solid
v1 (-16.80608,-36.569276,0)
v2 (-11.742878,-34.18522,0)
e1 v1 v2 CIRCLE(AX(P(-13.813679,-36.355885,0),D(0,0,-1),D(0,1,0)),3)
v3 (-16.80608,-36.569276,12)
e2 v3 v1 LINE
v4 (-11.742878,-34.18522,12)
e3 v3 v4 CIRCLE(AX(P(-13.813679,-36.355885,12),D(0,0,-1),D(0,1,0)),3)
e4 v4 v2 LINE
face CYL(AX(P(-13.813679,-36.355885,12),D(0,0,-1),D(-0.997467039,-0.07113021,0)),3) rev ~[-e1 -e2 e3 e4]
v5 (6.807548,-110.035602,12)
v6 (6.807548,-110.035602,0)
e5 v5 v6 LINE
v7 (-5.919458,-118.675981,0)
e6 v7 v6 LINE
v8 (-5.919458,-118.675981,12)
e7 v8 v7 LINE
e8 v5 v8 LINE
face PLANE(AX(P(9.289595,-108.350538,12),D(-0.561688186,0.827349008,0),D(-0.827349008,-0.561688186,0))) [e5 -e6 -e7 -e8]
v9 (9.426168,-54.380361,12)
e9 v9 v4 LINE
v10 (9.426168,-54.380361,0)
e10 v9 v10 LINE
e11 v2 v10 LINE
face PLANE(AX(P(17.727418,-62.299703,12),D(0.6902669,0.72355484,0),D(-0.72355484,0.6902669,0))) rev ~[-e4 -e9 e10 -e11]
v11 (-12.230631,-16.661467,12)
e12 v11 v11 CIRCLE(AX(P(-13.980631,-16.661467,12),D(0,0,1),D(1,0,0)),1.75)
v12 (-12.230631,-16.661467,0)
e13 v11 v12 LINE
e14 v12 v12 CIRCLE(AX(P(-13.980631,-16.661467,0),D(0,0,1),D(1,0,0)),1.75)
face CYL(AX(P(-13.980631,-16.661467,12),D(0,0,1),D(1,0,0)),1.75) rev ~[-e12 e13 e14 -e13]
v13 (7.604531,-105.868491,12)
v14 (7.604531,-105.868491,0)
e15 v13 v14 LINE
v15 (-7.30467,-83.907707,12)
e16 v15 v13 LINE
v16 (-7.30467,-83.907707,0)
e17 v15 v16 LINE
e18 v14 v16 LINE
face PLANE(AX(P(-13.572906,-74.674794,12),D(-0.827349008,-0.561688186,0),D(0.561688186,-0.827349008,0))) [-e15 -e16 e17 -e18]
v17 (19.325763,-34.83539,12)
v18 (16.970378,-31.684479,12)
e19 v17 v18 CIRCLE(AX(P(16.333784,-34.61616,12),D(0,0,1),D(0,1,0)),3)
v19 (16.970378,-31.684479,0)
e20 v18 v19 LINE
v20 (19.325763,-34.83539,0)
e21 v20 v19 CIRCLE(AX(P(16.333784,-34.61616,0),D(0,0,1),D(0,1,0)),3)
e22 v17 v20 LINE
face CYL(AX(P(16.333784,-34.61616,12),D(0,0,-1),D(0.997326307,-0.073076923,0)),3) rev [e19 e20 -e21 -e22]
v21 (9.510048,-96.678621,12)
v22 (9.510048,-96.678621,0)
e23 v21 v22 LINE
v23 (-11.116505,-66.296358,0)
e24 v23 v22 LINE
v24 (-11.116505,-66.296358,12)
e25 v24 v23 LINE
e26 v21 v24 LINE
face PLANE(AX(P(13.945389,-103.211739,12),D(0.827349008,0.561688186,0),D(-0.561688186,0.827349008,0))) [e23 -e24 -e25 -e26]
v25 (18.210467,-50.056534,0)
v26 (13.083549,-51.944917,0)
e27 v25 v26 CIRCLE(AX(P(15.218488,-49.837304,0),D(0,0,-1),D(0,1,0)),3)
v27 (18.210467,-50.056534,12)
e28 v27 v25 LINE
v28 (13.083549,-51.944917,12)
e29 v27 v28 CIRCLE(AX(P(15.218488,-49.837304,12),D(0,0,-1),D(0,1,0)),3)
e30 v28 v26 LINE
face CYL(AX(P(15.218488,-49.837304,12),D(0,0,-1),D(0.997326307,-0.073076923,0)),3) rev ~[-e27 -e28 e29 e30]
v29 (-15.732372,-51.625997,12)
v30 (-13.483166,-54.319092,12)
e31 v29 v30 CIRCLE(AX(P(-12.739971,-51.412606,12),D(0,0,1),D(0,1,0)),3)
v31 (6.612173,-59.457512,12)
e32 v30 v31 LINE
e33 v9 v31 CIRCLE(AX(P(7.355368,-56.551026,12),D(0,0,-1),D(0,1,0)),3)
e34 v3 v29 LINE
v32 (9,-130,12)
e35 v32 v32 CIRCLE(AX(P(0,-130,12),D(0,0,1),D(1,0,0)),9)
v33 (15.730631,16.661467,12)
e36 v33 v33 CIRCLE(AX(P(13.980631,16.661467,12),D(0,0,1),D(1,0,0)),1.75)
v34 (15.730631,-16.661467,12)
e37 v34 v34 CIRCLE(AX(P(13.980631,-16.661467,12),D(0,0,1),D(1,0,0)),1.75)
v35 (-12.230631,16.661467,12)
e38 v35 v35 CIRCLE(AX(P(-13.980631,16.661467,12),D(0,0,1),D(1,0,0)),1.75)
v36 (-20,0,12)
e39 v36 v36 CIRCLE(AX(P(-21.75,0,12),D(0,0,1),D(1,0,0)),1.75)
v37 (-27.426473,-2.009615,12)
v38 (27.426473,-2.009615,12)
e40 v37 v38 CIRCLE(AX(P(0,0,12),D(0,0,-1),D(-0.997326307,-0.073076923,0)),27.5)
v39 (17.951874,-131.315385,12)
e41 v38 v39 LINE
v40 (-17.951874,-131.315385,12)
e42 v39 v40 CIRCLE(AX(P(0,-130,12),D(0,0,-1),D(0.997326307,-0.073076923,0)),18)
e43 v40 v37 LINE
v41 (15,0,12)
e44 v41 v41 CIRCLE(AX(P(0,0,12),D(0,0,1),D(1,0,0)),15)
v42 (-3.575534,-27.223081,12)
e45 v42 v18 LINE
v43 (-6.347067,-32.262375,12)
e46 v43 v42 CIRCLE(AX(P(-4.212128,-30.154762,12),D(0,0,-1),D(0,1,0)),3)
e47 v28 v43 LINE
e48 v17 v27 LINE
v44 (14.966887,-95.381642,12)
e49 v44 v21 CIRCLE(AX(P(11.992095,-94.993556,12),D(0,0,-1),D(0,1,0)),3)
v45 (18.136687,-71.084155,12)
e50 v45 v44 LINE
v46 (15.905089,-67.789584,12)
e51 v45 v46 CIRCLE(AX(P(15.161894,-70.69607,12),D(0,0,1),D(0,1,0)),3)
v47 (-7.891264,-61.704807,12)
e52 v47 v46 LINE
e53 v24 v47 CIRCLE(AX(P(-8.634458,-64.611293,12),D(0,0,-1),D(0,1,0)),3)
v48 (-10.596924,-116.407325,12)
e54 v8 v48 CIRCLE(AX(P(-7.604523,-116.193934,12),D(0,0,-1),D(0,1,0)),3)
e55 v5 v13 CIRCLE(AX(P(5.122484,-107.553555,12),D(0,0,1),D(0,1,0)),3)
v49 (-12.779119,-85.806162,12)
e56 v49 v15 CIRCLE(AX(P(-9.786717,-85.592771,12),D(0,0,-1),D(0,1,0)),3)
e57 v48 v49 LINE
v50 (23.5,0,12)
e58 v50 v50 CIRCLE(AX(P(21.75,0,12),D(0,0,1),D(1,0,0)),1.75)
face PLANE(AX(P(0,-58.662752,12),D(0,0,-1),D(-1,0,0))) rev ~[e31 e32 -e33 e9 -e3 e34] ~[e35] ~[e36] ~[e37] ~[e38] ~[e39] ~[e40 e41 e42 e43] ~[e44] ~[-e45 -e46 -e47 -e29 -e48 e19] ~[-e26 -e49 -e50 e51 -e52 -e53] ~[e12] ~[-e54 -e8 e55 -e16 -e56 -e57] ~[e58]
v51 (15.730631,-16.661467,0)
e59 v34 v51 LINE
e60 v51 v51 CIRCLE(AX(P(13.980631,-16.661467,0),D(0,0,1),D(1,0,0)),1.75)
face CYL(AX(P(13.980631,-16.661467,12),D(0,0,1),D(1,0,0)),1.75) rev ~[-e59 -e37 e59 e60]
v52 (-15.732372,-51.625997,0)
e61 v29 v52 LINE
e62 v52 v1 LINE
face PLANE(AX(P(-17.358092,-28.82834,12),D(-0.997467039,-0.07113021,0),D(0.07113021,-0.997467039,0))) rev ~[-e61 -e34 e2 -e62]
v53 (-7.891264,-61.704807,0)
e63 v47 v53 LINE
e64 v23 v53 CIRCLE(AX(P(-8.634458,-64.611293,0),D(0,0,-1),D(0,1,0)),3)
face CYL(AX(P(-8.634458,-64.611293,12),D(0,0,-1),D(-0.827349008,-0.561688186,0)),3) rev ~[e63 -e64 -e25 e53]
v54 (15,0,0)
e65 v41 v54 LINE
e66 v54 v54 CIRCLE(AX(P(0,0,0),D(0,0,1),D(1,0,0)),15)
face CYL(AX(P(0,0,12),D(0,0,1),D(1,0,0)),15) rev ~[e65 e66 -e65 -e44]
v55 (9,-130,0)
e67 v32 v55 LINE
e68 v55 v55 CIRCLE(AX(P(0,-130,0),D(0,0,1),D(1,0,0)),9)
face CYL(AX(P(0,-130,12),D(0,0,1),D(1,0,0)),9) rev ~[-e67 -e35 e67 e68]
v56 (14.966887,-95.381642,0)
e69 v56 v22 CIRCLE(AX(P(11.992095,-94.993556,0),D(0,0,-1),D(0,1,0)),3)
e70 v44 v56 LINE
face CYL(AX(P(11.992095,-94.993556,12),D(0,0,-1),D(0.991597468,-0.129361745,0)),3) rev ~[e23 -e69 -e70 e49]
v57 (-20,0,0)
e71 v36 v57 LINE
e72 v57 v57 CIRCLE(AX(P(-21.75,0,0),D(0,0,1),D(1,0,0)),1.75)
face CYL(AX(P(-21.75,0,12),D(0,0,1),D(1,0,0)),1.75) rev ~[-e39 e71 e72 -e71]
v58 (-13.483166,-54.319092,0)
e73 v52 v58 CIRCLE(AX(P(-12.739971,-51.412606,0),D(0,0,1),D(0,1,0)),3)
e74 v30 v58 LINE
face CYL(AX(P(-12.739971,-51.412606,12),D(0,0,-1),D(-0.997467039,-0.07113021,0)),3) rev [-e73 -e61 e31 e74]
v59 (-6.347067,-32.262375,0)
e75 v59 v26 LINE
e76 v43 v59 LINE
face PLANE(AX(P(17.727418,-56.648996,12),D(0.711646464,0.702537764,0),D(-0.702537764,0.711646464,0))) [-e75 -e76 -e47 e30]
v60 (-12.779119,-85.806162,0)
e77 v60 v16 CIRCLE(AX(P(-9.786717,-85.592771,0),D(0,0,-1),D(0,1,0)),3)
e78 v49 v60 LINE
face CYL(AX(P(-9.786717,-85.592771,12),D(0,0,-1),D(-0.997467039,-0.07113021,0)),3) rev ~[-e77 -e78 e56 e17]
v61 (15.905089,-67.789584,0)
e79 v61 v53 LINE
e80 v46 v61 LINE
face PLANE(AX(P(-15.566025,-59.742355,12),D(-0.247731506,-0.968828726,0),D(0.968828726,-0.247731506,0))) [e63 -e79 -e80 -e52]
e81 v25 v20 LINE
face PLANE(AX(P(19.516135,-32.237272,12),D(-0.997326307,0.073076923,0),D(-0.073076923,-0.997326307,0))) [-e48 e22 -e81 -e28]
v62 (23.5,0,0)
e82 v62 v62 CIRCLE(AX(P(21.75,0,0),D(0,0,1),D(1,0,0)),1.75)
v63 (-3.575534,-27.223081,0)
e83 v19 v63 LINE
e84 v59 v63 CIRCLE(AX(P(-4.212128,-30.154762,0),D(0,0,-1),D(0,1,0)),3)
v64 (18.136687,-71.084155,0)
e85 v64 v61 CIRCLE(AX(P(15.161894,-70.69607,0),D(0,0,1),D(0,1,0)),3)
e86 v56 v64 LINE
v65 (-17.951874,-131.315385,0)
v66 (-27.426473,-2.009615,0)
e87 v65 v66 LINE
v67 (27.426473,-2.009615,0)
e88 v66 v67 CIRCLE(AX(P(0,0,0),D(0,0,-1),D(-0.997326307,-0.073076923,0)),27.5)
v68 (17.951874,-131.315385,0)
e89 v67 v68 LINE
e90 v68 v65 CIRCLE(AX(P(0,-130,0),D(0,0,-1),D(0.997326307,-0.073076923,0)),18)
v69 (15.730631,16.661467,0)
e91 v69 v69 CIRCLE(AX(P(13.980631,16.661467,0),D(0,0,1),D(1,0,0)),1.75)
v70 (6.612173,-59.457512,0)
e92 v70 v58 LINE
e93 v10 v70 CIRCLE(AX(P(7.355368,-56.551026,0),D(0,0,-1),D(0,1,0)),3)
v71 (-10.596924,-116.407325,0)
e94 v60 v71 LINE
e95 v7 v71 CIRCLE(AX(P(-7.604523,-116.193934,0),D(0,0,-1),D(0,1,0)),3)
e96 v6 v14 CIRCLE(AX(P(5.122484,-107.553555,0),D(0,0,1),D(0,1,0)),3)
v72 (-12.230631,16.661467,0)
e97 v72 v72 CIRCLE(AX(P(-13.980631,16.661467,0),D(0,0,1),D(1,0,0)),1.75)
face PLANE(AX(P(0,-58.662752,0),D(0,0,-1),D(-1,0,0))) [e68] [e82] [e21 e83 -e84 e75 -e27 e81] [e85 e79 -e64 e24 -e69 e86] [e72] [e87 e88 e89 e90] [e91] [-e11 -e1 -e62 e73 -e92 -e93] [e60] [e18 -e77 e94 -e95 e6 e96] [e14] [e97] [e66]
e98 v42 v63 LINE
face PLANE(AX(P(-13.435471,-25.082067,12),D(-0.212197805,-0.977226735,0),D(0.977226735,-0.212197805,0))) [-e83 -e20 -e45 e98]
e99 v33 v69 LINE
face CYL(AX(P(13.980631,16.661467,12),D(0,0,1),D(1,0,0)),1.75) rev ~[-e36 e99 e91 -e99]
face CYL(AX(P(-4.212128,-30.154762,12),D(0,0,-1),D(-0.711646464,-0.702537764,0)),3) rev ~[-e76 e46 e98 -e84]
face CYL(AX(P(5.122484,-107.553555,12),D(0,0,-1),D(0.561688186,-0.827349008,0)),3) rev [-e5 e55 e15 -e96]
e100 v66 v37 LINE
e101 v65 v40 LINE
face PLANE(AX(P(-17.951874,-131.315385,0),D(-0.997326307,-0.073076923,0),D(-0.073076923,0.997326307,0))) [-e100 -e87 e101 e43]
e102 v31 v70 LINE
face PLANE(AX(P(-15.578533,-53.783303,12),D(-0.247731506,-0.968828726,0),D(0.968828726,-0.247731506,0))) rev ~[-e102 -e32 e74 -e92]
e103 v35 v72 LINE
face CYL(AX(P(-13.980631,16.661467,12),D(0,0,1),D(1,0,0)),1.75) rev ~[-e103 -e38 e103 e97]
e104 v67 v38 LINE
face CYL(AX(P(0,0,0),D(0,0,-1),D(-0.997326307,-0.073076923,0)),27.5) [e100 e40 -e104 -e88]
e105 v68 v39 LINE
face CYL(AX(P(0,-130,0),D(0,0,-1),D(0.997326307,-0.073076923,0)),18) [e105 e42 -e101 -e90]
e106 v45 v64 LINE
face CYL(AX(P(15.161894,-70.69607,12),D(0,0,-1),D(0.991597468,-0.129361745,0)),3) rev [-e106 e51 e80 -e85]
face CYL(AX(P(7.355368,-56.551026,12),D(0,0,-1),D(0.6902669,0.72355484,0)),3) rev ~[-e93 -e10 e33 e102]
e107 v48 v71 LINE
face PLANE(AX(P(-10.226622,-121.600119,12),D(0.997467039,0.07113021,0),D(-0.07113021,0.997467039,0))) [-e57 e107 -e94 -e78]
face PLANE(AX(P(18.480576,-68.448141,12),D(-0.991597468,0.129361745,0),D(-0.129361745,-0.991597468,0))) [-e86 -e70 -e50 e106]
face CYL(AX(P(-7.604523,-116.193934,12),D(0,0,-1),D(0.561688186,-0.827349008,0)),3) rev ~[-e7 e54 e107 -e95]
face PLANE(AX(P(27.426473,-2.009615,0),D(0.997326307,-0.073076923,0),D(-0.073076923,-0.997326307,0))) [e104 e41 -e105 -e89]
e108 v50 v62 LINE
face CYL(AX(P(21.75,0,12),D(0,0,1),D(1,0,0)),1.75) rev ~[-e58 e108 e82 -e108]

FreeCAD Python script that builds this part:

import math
import FreeCAD as App
import Part
import Sketcher

V = App.Vector
Q = App.Units.Quantity


def edges_at(feature, points):
    """Names of the edges that pass closest to the given points."""
    edges = feature.Shape.Edges
    near = lambda p: min(range(len(edges)), key=lambda i: edges[i].distToShape(Part.Vertex(*p))[0])
    return sorted({f"Edge{near(p) + 1}" for p in points})


def add_polygon(sketch, points):
    """Adds a closed chain of lines whose ends are joined by coincident constraints."""
    first, n = sketch.GeometryCount, len(points)
    for a, b in zip(points, points[1:] + points[:1]):
        sketch.addGeometry(Part.LineSegment(App.Vector(*a, 0), App.Vector(*b, 0)), False)
    for i in range(n):
        sketch.addConstraint(Sketcher.Constraint("Coincident", first + i, 2, first + (i + 1) % n, 1))

doc = App.newDocument("Part")
body = doc.addObject("PartDesign::Body", "Body")

# Sketch on XY plane
sketch1 = doc.addObject("Sketcher::SketchObject", "Sketch")
body.addObject(sketch1)
sketch1.AttachmentSupport = (doc.XY_Plane, [""])
sketch1.MapMode = "FlatFace"
sketch1.addGeometry(Part.LineSegment(V(-27.426473, -2.009615, 0), V(-17.951874, -131.315385, 0)), False)
sketch1.addGeometry(Part.ArcOfCircle(Part.Circle(V(0, -130, 0), V(0, 0, 1), 18), math.radians(-175.809265), math.radians(-4.190735)), False)
sketch1.addGeometry(Part.LineSegment(V(17.951874, -131.315385, 0), V(27.426473, -2.009615, 0)), False)
sketch1.addGeometry(Part.ArcOfCircle(Part.Circle(V(0, 0, 0), V(0, 0, 1), 27.5), math.radians(-4.190735), math.radians(184.190735)), False)
sketch1.addConstraint(Sketcher.Constraint("Tangent", 0, 2, 1, 1))
sketch1.addConstraint(Sketcher.Constraint("Tangent", 1, 2, 2, 1))
sketch1.addConstraint(Sketcher.Constraint("Tangent", 2, 2, 3, 1))
sketch1.addConstraint(Sketcher.Constraint("Tangent", 3, 2, 0, 1))
sketch1.addConstraint(Sketcher.Constraint("Coincident", 3, 3, -1, 1))
sketch1.addConstraint(Sketcher.Constraint("PointOnObject", 1, 3, -2))
sketch1.addConstraint(Sketcher.Constraint("Radius", 1, Q("18 mm")))
sketch1.addConstraint(Sketcher.Constraint("Radius", 3, Q("27.5 mm")))
sketch1.addConstraint(Sketcher.Constraint("DistanceY", 1, 3, -1, 1, Q("130 mm")))
pad1 = doc.addObject("PartDesign::Pad", "Pad")
body.addObject(pad1)
pad1.Profile = sketch1
pad1.Length = 12

# Sketch on XY plane
sketch2 = doc.addObject("Sketcher::SketchObject", "Sketch001")
body.addObject(sketch2)
sketch2.AttachmentSupport = (doc.XY_Plane, [""])
sketch2.MapMode = "FlatFace"
sketch2.AttachmentOffset = App.Placement(V(0, 0, 12), App.Rotation())
sketch2.addGeometry(Part.Circle(V(-13.980631, 16.661467, 0), V(0, 0, 1), 1.75), False)
sketch2.addGeometry(Part.Circle(V(-21.75, 0, 0), V(0, 0, 1), 1.75), False)
sketch2.addGeometry(Part.Circle(V(-13.980631, -16.661467, 0), V(0, 0, 1), 1.75), False)
sketch2.addGeometry(Part.Circle(V(13.980631, -16.661467, 0), V(0, 0, 1), 1.75), False)
sketch2.addGeometry(Part.Circle(V(21.75, 0, 0), V(0, 0, 1), 1.75), False)
sketch2.addGeometry(Part.Circle(V(13.980631, 16.661467, 0), V(0, 0, 1), 1.75), False)
sketch2.addConstraint(Sketcher.Constraint("Equal", 0, 1))
sketch2.addConstraint(Sketcher.Constraint("Equal", 1, 2))
sketch2.addConstraint(Sketcher.Constraint("Equal", 2, 3))
sketch2.addConstraint(Sketcher.Constraint("Equal", 3, 4))
sketch2.addConstraint(Sketcher.Constraint("Equal", 4, 5))
sketch2.addConstraint(Sketcher.Constraint("Symmetric", 0, 3, 3, 3, -1, 1))
sketch2.addConstraint(Sketcher.Constraint("Symmetric", 1, 3, 4, 3, -1, 1))
sketch2.addConstraint(Sketcher.Constraint("Symmetric", 2, 3, 5, 3, -1, 1))
sketch2.addConstraint(Sketcher.Constraint("Symmetric", 2, 3, 3, 3, -2))
sketch2.addConstraint(Sketcher.Constraint("PointOnObject", 1, 3, -1))
sketch2.addConstraint(Sketcher.Constraint("Diameter", 0, Q("3.5 mm")))
sketch2.addConstraint(Sketcher.Constraint("DistanceX", 1, 3, 4, 3, Q("43.5 mm")))
sketch2.addConstraint(Sketcher.Constraint("DistanceX", 0, 3, -1, 1, Q("13.980631 mm")))
sketch2.addConstraint(Sketcher.Constraint("DistanceY", -1, 1, 0, 3, Q("16.661467 mm")))
pocket1 = doc.addObject("PartDesign::Pocket", "Pocket")
body.addObject(pocket1)
pocket1.Profile = sketch2
pocket1.Length = 15

# Sketch on XY plane
sketch3 = doc.addObject("Sketcher::SketchObject", "Sketch002")
body.addObject(sketch3)
sketch3.AttachmentSupport = (doc.XY_Plane, [""])
sketch3.MapMode = "FlatFace"
sketch3.AttachmentOffset = App.Placement(V(0, 0, 12), App.Rotation())
sketch3.addGeometry(Part.Circle(V(0, 0, 0), V(0, 0, 1), 15), False)
sketch3.addConstraint(Sketcher.Constraint("Coincident", 0, 3, -1, 1))
sketch3.addConstraint(Sketcher.Constraint("Diameter", 0, Q("30 mm")))
pocket2 = doc.addObject("PartDesign::Pocket", "Pocket001")
body.addObject(pocket2)
pocket2.Profile = sketch3
pocket2.Type = "ThroughAll"

# Sketch on XY plane
sketch4 = doc.addObject("Sketcher::SketchObject", "Sketch003")
body.addObject(sketch4)
sketch4.AttachmentSupport = (doc.XY_Plane, [""])
sketch4.MapMode = "FlatFace"
sketch4.AttachmentOffset = App.Placement(V(0, 0, 12), App.Rotation())
sketch4.addGeometry(Part.Circle(V(0, -130, 0), V(0, 0, 1), 9), False)
sketch4.addConstraint(Sketcher.Constraint("PointOnObject", 0, 3, -2))
sketch4.addConstraint(Sketcher.Constraint("Diameter", 0, Q("18 mm")))
sketch4.addConstraint(Sketcher.Constraint("DistanceY", 0, 3, -1, 1, Q("130 mm")))
pocket3 = doc.addObject("PartDesign::Pocket", "Pocket002")
body.addObject(pocket3)
pocket3.Profile = sketch4
pocket3.Type = "ThroughAll"

# Sketch on XY plane
sketch5 = doc.addObject("Sketcher::SketchObject", "Sketch004")
body.addObject(sketch5)
sketch5.AttachmentSupport = (doc.XY_Plane, [""])
sketch5.MapMode = "FlatFace"
sketch5.AttachmentOffset = App.Placement(V(0, 0, 12), App.Rotation())
add_polygon(sketch5, [(19.516135, -32.237272), (-13.435471, -25.082067), (17.727418, -56.648996)])  # lines 0-2
add_polygon(sketch5, [(-17.358092, -28.82834), (-15.578533, -53.783303), (17.727418, -62.299703)])  # lines 3-5
add_polygon(sketch5, [(18.480576, -68.448141), (-15.566025, -59.742355), (13.945389, -103.211739)])  # lines 6-8
add_polygon(sketch5, [(9.289595, -108.350538), (-13.572906, -74.674794), (-10.226622, -121.600119)])  # lines 9-11
sketch5.addConstraint(Sketcher.Constraint("Parallel", 4, 6))
sketch5.addConstraint(Sketcher.Constraint("Parallel", 7, 9))
sketch5.addConstraint(Sketcher.Constraint("Parallel", 3, 10))
sketch5.addConstraint(Sketcher.Constraint("Perpendicular", 9, 11))
sketch5.addConstraint(Sketcher.Constraint("Vertical", 1, 2, 4, 2))
sketch5.addConstraint(Sketcher.Constraint("Distance", 1, Q("44.357601 mm")))
sketch5.addConstraint(Sketcher.Constraint("DistanceY", 4, 2, 3, 2, Q("8.516401 mm")))
sketch5.addConstraint(Sketcher.Constraint("DistanceX", 6, 2, 8, 2, Q("34.046601 mm")))
sketch5.addConstraint(Sketcher.Constraint("DistanceY", 11, 2, 7, 2, Q("5.138799 mm")))
sketch5.addConstraint(Sketcher.Constraint("DistanceX", 9, 2, 11, 2, Q("22.862501 mm")))
sketch5.addConstraint(Sketcher.Constraint("Distance", 0, Q("33.719509 mm")))
sketch5.addConstraint(Sketcher.Constraint("Distance", 2, Q("24.477169 mm")))
sketch5.addConstraint(Sketcher.Constraint("Distance", 9, Q("40.70319 mm")))
sketch5.addConstraint(Sketcher.Constraint("DistanceX", 0, 2, -1, 1, Q("13.435471 mm")))
sketch5.addConstraint(Sketcher.Constraint("DistanceX", -1, 1, 1, 2, Q("17.727418 mm")))
sketch5.addConstraint(Sketcher.Constraint("DistanceY", 5, 2, -1, 1, Q("28.82834 mm")))
sketch5.addConstraint(Sketcher.Constraint("DistanceX", -1, 1, 7, 2, Q("13.945389 mm")))
sketch5.addConstraint(Sketcher.Constraint("DistanceY", 7, 2, -1, 1, Q("103.211739 mm")))
sketch5.addConstraint(Sketcher.Constraint("DistanceY", 8, 2, -1, 1, Q("68.448141 mm")))
sketch5.addConstraint(Sketcher.Constraint("DistanceX", 10, 2, -1, 1, Q("10.226622 mm")))
sketch5.addConstraint(Sketcher.Constraint("DistanceY", 10, 2, -1, 1, Q("121.600119 mm")))
sketch5.addConstraint(Sketcher.Constraint("DistanceX", 3, 2, 0, 2, Q("2.143062 mm")))
sketch5.addConstraint(Sketcher.Constraint("DistanceY", 3, 2, 2, 2, Q("21.54603 mm")))
sketch5.addConstraint(Sketcher.Constraint("DistanceX", 5, 2, 0, 2, Q("3.922621 mm")))
pocket4 = doc.addObject("PartDesign::Pocket", "Pocket003")
body.addObject(pocket4)
pocket4.Profile = sketch5
pocket4.Length = 46
doc.recompute()

fillet = doc.addObject("PartDesign::Fillet", "Fillet")
body.addObject(fillet)
fillet.Base = (pocket4, edges_at(pocket4, [
    (13.945, -103.212, 6),
    (-15.566, -59.742, 6),
    (18.481, -68.448, 6),
    (-17.358, -28.828, 6),
    (17.727, -62.3, 6),
    (-15.579, -53.783, 6),
    (9.29, -108.351, 6),
    (-10.227, -121.6, 6),
    (-13.573, -74.675, 6),
    (17.727, -56.649, 6),
    (-13.435, -25.082, 6),
    (19.516, -32.237, 6),
]))
fillet.Radius = 3

doc.recompute()
